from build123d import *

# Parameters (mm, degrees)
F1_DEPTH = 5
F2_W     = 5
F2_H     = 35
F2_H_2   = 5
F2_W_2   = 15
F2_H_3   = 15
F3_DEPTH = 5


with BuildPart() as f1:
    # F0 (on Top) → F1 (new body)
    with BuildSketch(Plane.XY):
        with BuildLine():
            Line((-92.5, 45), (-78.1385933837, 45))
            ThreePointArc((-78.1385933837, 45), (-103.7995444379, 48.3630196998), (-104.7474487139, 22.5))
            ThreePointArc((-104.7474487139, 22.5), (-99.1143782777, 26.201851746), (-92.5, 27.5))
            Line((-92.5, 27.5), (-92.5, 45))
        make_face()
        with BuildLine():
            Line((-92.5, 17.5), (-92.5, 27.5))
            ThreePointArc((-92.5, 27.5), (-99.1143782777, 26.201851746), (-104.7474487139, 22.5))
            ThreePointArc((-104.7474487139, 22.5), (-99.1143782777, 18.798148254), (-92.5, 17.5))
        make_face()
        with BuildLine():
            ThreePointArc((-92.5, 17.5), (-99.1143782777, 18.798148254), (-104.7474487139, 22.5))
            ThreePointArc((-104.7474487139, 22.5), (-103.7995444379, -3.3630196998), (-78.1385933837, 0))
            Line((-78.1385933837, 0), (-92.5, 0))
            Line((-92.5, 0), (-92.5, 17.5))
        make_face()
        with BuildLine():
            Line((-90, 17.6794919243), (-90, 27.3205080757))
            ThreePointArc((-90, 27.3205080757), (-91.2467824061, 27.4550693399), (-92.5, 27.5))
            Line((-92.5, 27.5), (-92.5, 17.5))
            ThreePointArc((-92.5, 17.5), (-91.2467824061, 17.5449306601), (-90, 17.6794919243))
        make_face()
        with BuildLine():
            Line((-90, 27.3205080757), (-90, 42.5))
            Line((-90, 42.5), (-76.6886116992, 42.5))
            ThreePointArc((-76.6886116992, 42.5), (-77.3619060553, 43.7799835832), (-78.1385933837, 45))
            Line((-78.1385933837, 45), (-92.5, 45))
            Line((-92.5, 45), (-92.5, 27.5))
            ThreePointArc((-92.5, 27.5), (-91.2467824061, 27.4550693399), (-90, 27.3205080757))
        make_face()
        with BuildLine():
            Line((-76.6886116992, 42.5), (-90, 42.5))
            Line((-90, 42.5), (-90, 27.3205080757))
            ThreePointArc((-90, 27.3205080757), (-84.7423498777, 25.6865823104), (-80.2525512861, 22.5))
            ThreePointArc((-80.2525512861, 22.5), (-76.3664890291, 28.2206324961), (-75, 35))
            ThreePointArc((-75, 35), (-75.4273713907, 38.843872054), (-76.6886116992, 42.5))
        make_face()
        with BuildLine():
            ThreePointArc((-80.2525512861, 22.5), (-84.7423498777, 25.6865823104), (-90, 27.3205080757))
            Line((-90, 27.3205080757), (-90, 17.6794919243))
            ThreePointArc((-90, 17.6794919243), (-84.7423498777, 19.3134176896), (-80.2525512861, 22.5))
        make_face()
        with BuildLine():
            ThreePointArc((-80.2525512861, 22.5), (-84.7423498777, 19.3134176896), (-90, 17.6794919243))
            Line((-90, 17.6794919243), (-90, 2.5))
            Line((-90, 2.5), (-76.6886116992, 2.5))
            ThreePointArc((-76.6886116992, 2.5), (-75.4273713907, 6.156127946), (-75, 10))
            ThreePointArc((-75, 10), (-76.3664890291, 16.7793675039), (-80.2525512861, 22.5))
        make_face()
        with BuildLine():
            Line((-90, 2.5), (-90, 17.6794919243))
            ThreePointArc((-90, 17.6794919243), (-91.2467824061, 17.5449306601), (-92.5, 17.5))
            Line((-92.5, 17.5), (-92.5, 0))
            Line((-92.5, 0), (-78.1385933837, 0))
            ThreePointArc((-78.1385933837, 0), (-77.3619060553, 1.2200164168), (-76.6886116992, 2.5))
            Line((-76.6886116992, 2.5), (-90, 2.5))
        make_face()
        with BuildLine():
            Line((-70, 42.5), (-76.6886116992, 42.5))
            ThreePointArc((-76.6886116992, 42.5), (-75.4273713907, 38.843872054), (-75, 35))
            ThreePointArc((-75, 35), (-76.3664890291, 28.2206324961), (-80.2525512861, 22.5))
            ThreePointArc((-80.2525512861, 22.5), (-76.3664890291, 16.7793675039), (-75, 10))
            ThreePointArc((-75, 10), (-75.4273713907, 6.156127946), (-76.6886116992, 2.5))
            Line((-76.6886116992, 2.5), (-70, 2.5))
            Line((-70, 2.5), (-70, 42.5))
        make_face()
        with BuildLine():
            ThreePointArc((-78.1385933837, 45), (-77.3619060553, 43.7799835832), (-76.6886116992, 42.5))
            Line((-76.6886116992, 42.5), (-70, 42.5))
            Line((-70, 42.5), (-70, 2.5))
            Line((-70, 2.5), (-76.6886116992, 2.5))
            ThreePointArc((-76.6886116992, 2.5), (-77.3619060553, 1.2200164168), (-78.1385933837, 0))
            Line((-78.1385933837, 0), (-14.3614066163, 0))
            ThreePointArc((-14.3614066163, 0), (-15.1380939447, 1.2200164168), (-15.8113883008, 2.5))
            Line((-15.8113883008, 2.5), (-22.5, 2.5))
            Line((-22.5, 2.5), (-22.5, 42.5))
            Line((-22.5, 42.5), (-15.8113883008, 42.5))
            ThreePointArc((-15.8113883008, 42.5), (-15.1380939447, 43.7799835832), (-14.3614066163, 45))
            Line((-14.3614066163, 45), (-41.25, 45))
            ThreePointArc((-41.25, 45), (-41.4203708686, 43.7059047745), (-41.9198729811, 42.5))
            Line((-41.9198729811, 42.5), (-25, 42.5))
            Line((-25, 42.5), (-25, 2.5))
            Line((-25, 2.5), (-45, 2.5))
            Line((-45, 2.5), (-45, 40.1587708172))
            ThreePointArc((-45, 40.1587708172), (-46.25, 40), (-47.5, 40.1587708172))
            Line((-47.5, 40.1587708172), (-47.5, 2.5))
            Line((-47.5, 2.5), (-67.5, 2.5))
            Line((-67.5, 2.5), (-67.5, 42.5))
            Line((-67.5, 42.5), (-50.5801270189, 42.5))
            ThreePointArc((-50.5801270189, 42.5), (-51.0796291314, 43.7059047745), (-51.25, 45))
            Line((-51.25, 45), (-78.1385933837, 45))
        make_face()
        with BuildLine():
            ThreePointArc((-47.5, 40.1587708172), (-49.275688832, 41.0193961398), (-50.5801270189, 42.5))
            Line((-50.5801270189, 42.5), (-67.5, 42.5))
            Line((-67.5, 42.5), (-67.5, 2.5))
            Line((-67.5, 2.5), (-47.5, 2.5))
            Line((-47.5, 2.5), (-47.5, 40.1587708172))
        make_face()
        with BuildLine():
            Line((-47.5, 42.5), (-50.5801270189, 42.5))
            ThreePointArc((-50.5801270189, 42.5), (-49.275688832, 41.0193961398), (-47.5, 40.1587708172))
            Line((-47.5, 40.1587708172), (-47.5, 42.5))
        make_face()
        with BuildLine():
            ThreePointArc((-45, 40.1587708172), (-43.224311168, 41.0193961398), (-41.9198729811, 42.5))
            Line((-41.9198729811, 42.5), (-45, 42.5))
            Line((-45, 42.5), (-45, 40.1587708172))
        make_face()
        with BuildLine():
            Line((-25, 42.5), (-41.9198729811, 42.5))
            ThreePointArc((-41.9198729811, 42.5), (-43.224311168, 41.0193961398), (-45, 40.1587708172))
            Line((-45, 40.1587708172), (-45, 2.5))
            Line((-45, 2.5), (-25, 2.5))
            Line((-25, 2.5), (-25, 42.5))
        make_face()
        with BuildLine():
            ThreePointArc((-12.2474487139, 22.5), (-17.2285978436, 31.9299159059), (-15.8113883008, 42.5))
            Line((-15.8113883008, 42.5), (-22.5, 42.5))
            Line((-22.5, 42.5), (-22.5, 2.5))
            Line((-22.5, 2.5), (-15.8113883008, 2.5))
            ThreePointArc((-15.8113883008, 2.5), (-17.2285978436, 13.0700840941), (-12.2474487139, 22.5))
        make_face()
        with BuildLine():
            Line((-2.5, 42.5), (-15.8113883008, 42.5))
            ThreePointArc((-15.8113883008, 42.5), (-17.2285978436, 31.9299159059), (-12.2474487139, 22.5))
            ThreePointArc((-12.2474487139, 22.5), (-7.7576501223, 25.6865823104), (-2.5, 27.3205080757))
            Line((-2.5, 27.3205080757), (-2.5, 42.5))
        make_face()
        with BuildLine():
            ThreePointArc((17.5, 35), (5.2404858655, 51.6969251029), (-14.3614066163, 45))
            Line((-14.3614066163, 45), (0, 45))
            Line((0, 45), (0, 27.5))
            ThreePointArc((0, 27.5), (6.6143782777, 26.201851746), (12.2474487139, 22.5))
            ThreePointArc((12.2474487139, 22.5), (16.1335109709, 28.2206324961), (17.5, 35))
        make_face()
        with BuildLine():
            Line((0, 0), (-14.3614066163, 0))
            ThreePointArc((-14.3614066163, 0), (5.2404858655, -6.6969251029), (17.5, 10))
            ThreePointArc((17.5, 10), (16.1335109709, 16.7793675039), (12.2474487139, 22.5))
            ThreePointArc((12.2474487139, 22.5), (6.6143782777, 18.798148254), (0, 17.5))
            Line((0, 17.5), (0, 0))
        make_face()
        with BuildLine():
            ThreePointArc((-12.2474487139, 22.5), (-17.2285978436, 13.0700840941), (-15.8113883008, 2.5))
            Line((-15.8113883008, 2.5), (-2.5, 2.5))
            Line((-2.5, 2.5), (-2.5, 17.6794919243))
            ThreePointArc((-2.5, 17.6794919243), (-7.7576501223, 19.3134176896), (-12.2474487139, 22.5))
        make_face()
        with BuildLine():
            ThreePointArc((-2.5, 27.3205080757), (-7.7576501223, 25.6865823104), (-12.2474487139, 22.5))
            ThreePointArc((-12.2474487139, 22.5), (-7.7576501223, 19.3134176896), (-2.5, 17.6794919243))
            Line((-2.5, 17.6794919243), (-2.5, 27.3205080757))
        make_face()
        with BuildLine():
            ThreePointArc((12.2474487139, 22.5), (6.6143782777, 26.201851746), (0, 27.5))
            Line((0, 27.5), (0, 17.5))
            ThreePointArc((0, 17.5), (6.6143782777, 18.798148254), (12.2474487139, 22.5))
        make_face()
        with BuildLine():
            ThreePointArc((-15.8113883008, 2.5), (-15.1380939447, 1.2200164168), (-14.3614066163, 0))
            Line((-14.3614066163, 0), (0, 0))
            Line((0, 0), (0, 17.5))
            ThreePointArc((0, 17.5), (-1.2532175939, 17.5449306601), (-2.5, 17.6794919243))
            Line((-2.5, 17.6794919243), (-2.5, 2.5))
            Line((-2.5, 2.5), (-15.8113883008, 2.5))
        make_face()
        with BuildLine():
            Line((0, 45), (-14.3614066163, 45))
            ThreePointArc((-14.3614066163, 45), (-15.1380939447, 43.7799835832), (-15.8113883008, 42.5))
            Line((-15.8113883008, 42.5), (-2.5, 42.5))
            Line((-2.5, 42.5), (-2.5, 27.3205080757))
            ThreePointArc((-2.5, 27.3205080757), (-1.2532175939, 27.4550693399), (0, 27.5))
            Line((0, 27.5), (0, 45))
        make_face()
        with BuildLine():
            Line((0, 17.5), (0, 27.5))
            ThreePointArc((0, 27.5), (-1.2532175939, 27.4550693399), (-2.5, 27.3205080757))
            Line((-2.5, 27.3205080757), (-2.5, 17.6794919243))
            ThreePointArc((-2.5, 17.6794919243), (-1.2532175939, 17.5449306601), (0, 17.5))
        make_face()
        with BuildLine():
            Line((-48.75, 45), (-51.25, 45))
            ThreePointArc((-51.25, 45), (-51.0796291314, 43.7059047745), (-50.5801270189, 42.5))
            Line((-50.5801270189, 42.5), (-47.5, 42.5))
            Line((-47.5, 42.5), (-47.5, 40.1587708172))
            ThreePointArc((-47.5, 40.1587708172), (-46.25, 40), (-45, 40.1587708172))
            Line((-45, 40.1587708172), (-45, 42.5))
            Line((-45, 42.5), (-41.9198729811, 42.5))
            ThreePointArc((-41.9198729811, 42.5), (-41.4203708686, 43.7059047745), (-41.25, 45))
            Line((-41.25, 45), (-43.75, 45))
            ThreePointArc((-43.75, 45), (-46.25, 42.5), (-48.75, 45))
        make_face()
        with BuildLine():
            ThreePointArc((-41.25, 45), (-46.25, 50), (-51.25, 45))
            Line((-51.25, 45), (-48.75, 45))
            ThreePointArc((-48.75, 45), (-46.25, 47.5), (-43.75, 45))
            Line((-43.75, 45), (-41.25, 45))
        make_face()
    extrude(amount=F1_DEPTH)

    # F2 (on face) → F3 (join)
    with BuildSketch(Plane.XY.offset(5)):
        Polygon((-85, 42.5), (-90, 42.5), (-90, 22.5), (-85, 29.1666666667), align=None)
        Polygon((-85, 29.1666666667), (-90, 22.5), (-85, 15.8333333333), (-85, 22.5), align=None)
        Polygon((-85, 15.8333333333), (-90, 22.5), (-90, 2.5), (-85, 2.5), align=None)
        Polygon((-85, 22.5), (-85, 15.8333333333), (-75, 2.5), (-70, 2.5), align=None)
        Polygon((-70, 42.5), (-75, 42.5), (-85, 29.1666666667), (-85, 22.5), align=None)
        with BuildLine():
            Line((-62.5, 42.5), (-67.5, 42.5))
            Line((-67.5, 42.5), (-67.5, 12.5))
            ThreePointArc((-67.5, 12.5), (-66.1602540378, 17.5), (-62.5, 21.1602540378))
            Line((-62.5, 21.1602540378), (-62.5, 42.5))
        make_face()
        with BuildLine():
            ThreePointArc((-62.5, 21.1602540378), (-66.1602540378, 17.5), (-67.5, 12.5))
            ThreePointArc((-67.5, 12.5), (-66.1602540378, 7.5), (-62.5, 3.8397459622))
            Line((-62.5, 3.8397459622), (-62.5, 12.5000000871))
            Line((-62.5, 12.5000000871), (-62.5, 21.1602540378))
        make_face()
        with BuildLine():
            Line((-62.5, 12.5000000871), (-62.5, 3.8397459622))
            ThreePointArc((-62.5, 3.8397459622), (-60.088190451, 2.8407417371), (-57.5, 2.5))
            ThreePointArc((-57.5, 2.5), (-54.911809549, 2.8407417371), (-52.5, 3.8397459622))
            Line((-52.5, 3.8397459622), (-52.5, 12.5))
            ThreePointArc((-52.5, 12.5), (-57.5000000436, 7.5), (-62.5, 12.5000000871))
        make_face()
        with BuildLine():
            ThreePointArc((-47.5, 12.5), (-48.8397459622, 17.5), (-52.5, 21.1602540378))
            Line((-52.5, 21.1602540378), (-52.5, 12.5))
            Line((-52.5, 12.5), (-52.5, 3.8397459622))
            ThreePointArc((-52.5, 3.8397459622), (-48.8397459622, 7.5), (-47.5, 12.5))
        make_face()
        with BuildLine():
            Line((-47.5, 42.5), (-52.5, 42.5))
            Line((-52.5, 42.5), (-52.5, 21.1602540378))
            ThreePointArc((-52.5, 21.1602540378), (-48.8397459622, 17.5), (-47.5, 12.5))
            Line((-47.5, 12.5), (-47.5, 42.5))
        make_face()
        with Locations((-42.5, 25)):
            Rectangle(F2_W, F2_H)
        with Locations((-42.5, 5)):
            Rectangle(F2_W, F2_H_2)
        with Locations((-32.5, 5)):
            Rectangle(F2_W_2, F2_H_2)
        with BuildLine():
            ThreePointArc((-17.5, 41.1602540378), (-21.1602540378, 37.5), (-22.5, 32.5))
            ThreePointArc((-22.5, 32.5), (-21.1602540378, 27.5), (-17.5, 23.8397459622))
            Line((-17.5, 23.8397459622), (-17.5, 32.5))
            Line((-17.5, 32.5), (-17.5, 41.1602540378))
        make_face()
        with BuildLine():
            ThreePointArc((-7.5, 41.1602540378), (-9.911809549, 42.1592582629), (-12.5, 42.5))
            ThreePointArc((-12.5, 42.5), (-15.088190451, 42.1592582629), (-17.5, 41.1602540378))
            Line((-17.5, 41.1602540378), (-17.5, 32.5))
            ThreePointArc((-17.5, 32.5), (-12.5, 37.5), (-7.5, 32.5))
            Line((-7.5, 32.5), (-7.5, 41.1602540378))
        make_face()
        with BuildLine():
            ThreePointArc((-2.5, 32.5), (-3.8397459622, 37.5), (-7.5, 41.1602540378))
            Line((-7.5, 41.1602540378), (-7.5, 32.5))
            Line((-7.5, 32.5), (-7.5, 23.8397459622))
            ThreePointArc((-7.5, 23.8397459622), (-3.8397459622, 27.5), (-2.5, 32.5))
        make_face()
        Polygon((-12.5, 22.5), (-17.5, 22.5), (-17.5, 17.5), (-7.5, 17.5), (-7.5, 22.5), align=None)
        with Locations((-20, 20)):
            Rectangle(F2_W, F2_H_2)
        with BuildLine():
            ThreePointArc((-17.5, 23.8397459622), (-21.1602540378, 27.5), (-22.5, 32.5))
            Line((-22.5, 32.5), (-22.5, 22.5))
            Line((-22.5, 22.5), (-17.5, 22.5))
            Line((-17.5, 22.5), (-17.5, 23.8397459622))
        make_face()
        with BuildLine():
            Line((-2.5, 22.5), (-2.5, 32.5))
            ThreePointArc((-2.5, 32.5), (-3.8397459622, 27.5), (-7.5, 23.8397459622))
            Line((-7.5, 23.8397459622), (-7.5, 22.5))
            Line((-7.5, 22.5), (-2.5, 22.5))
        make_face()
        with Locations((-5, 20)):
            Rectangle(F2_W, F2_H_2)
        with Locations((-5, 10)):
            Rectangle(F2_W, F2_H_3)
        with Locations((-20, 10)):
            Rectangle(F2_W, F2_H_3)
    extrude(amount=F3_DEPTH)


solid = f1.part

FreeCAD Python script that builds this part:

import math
import FreeCAD as App
import Part
import Sketcher

V = App.Vector


def add_polygon(sketch, points):
    """Adds a closed chain of lines whose ends are joined by coincident constraints."""
    first, n = sketch.GeometryCount, len(points)
    for a, b in zip(points, points[1:] + points[:1]):
        sketch.addGeometry(Part.LineSegment(App.Vector(*a, 0), App.Vector(*b, 0)), False)
    for i in range(n):
        sketch.addConstraint(Sketcher.Constraint("Coincident", first + i, 2, first + (i + 1) % n, 1))

doc = App.newDocument("Part")
params = doc.addObject("Spreadsheet::Sheet", "Params")
for row, (alias, value) in enumerate([
    ("sketch1_diameter", "5 mm"),
    ("sketch1_radius", "5 mm"),
    ("sketch1_radius2", "17.5 mm"),
    ("pad1_length", "5 mm"),
    ("sketch2_radius", "10 mm"),
    ("sketch2_radius2", "5 mm"),
    ("sketch2_width", "20 mm"),
    ("sketch2_length", "25 mm"),
    ("pad2_length", "5 mm"),
], start=1):
    params.set(f"A{row}", alias)
    params.set(f"B{row}", "=" + value)
    params.setAlias(f"B{row}", alias)

body = doc.addObject("PartDesign::Body", "Body")

sketch1 = body.newObject("Sketcher::SketchObject", "Sketch")
sketch1.AttachmentSupport = (doc.getObject("XY_Plane"), [""])
sketch1.MapMode = "FlatFace"
sketch1.addGeometry([
    Part.ArcOfCircle(Part.Circle(V(0, 35, 0), V(0, 0, 1), 17.5), math.radians(0), math.radians(145.150095)),
    Part.LineSegment(V(-14.361407, 45, 0), V(-41.25, 45, 0)),
    Part.ArcOfCircle(Part.Circle(V(-46.25, 45, 0), V(0, 0, 1), 5), math.radians(0), math.radians(180)),
    Part.LineSegment(V(-51.25, 45, 0), V(-78.138593, 45, 0)),
    Part.ArcOfCircle(Part.Circle(V(-92.5, 35, 0), V(0, 0, 1), 17.5), math.radians(34.849905), math.radians(225.584691)),
    Part.ArcOfCircle(Part.Circle(V(-92.5, 10, 0), V(0, 0, 1), 17.5), math.radians(134.415309), math.radians(325.150095)),
    Part.LineSegment(V(-78.138593, 0, 0), V(-14.361407, 0, 0)),
    Part.ArcOfCircle(Part.Circle(V(0, 10, 0), V(0, 0, 1), 17.5), math.radians(-145.150095), math.radians(0)),
    Part.ArcOfCircle(Part.Circle(V(0, 10, 0), V(0, 0, 1), 17.5), math.radians(0), math.radians(45.584691)),
    Part.ArcOfCircle(Part.Circle(V(0, 35, 0), V(0, 0, 1), 17.5), math.radians(-45.584691), math.radians(0)),
    Part.Circle(V(-46.25, 45, 0), V(0, 0, 1), 2.5),
], False)
sketch1.addConstraint([
    Sketcher.Constraint("Coincident", 0, 2, 1, 1),
    Sketcher.Constraint("Coincident", 1, 2, 2, 1),
    Sketcher.Constraint("Coincident", 2, 2, 3, 1),
    Sketcher.Constraint("Coincident", 3, 2, 4, 1),
    Sketcher.Constraint("Coincident", 4, 2, 5, 1),
    Sketcher.Constraint("Coincident", 5, 2, 6, 1),
    Sketcher.Constraint("Coincident", 6, 2, 7, 1),
    Sketcher.Constraint("Tangent", 7, 2, 8, 1),
    Sketcher.Constraint("Coincident", 8, 2, 9, 1),
    Sketcher.Constraint("Tangent", 9, 2, 0, 1),
    Sketcher.Constraint("Horizontal", 1),
    Sketcher.Constraint("Horizontal", 3),
    Sketcher.Constraint("Horizontal", 6),
    Sketcher.Constraint("Coincident", 10, 3, 2, 3),
    Sketcher.Constraint("Equal", 0, 4),
    Sketcher.Constraint("Equal", 4, 5),
    Sketcher.Constraint("Equal", 5, 7),
    Sketcher.Constraint("Equal", 7, 8),
    Sketcher.Constraint("Equal", 8, 9),
    Sketcher.Constraint("PointOnObject", 0, 3, -2),
    Sketcher.Constraint("PointOnObject", 7, 3, -2),
    Sketcher.Constraint("PointOnObject", 5, 2, -1),
    Sketcher.Constraint("Horizontal", 0, 3, 4, 3),
    Sketcher.Constraint("Horizontal", 5, 3, 7, 3),
    Sketcher.Constraint("Horizontal", 10, 3, 0, 2),
    Sketcher.Constraint("Horizontal", 1, 2, 2, 2),
    Sketcher.Constraint("Horizontal", 8, 3, 7, 2),
    Sketcher.Constraint("Horizontal", 4, 2, 8, 2),
    Sketcher.Constraint("Horizontal", 4, 3, 9, 2),
    Sketcher.Constraint("Vertical", 3, 2, 5, 2),
    Sketcher.Constraint("Equal", 1, 3),
    Sketcher.Constraint("Diameter", 10, 5.0),
    Sketcher.Constraint("Radius", 2, 5.0),
    Sketcher.Constraint("Radius", 0, 17.5),
    Sketcher.Constraint("DistanceY", -1, 1, 0, 3, 35.0),
    Sketcher.Constraint("DistanceY", -1, 1, 2, 3, 45.0),
    Sketcher.Constraint("DistanceX", 4, 3, -1, 1, 92.5),
])
sketch1.setExpression("Constraints[31]", "Params.sketch1_diameter")
sketch1.setExpression("Constraints[32]", "Params.sketch1_radius")
sketch1.setExpression("Constraints[33]", "Params.sketch1_radius2")
pad1 = body.newObject("PartDesign::Pad", "Pad")
pad1.Profile = sketch1
pad1.setExpression("Length", "Params.pad1_length")

sketch2 = body.newObject("Sketcher::SketchObject", "Sketch001")
sketch2.AttachmentSupport = (doc.getObject("XY_Plane"), [""])
sketch2.MapMode = "FlatFace"
sketch2.AttachmentOffset = App.Placement(V(0, 0, 5), App.Rotation())
add_polygon(sketch2, [(-85, 42.5), (-90, 42.5), (-90, 2.5), (-85, 2.5), (-85, 15.833333), (-75, 2.5), (-70, 2.5), (-85, 22.5), (-70, 42.5), (-75, 42.5), (-85, 29.166667)])
sketch2.addGeometry(Part.LineSegment(V(-62.5, 42.5, 0), V(-67.5, 42.5, 0)), False)
sketch2.addGeometry(Part.LineSegment(V(-67.5, 42.5, 0), V(-67.5, 12.5, 0)), False)
sketch2.addGeometry(Part.ArcOfCircle(Part.Circle(V(-57.5, 12.5, 0), V(0, 0, 1), 10), math.radians(180), math.radians(240)), False)
sketch2.addGeometry(Part.ArcOfCircle(Part.Circle(V(-57.5, 12.5, 0), V(0, 0, 1), 10), math.radians(-120), math.radians(-90)), False)
sketch2.addGeometry(Part.ArcOfCircle(Part.Circle(V(-57.5, 12.5, 0), V(0, 0, 1), 10), math.radians(-90), math.radians(-60)), False)
sketch2.addGeometry(Part.ArcOfCircle(Part.Circle(V(-57.5, 12.5, 0), V(0, 0, 1), 10), math.radians(-60), math.radians(0)), False)
sketch2.addGeometry(Part.LineSegment(V(-47.5, 12.5, 0), V(-47.5, 42.5, 0)), False)
sketch2.addGeometry(Part.LineSegment(V(-47.5, 42.5, 0), V(-52.5, 42.5, 0)), False)
sketch2.addGeometry(Part.LineSegment(V(-52.5, 42.5, 0), V(-52.5, 12.5, 0)), False)
sketch2.addGeometry(Part.ArcOfCircle(Part.Circle(V(-57.5, 12.5, 0), V(0, 0, 1), 5), math.radians(179.999999), math.radians(360)), False)
sketch2.addGeometry(Part.LineSegment(V(-62.5, 12.5, 0), V(-62.5, 42.5, 0)), False)
add_polygon(sketch2, [(-45, 42.5), (-45, 2.5), (-25, 2.5), (-25, 7.5), (-40, 7.5), (-40, 42.5)])
sketch2.addGeometry(Part.LineSegment(V(-17.5, 17.5, 0), V(-7.5, 17.5, 0)), False)
sketch2.addGeometry(Part.LineSegment(V(-7.5, 17.5, 0), V(-7.5, 2.5, 0)), False)
sketch2.addGeometry(Part.LineSegment(V(-7.5, 2.5, 0), V(-2.5, 2.5, 0)), False)
sketch2.addGeometry(Part.LineSegment(V(-2.5, 2.5, 0), V(-2.5, 32.5, 0)), False)
sketch2.addGeometry(Part.ArcOfCircle(Part.Circle(V(-12.5, 32.5, 0), V(0, 0, 1), 10), math.radians(0), math.radians(60)), False)
sketch2.addGeometry(Part.ArcOfCircle(Part.Circle(V(-12.5, 32.5, 0), V(0, 0, 1), 10), math.radians(60), math.radians(90)), False)
sketch2.addGeometry(Part.ArcOfCircle(Part.Circle(V(-12.5, 32.5, 0), V(0, 0, 1), 10), math.radians(90), math.radians(120)), False)
sketch2.addGeometry(Part.ArcOfCircle(Part.Circle(V(-12.5, 32.5, 0), V(0, 0, 1), 10), math.radians(120), math.radians(180)), False)
sketch2.addGeometry(Part.LineSegment(V(-22.5, 32.5, 0), V(-22.5, 2.5, 0)), False)
sketch2.addGeometry(Part.LineSegment(V(-22.5, 2.5, 0), V(-17.5, 2.5, 0)), False)
sketch2.addGeometry(Part.LineSegment(V(-17.5, 2.5, 0), V(-17.5, 17.5, 0)), False)
sketch2.addGeometry(Part.LineSegment(V(-7.5, 32.5, 0), V(-7.5, 22.5, 0)), False)
sketch2.addGeometry(Part.LineSegment(V(-7.5, 22.5, 0), V(-17.5, 22.5, 0)), False)
sketch2.addGeometry(Part.LineSegment(V(-17.5, 22.5, 0), V(-17.5, 32.5, 0)), False)
sketch2.addGeometry(Part.ArcOfCircle(Part.Circle(V(-12.5, 32.5, 0), V(0, 0, 1), 5), math.radians(0), math.radians(180)), False)
sketch2.addConstraint([
    Sketcher.Constraint("Coincident", 11, 2, 12, 1),
    Sketcher.Constraint("Tangent", 12, 2, 13, 1),
    Sketcher.Constraint("Tangent", 13, 2, 14, 1),
    Sketcher.Constraint("Tangent", 14, 2, 15, 1),
    Sketcher.Constraint("Tangent", 15, 2, 16, 1),
    Sketcher.Constraint("Tangent", 16, 2, 17, 1),
    Sketcher.Constraint("Coincident", 17, 2, 18, 1),
    Sketcher.Constraint("Coincident", 18, 2, 19, 1),
    Sketcher.Constraint("Tangent", 19, 2, 20, 2),
    Sketcher.Constraint("Tangent", 20, 1, 21, 1),
    Sketcher.Constraint("Coincident", 21, 2, 11, 1),
    Sketcher.Constraint("Coincident", 28, 2, 29, 1),
    Sketcher.Constraint("Coincident", 29, 2, 30, 1),
    Sketcher.Constraint("Coincident", 30, 2, 31, 1),
    Sketcher.Constraint("Tangent", 31, 2, 32, 1),
    Sketcher.Constraint("Tangent", 32, 2, 33, 1),
    Sketcher.Constraint("Tangent", 33, 2, 34, 1),
    Sketcher.Constraint("Tangent", 34, 2, 35, 1),
    Sketcher.Constraint("Tangent", 35, 2, 36, 1),
    Sketcher.Constraint("Coincident", 36, 2, 37, 1),
    Sketcher.Constraint("Coincident", 37, 2, 38, 1),
    Sketcher.Constraint("Coincident", 38, 2, 28, 1),
    Sketcher.Constraint("Coincident", 39, 2, 40, 1),
    Sketcher.Constraint("Coincident", 40, 2, 41, 1),
    Sketcher.Constraint("Tangent", 41, 2, 42, 2),
    Sketcher.Constraint("Tangent", 42, 1, 39, 1),
    Sketcher.Constraint("Horizontal", 0),
    Sketcher.Constraint("Vertical", 1),
    Sketcher.Constraint("Horizontal", 2),
    Sketcher.Constraint("Vertical", 3),
    Sketcher.Constraint("Horizontal", 5),
    Sketcher.Constraint("Horizontal", 8),
    Sketcher.Constraint("Vertical", 10),
    Sketcher.Constraint("Horizontal", 11),
    Sketcher.Constraint("Vertical", 12),
    Sketcher.Constraint("Vertical", 17),
    Sketcher.Constraint("Horizontal", 18),
    Sketcher.Constraint("Vertical", 19),
    Sketcher.Constraint("Vertical", 21),
    Sketcher.Constraint("Vertical", 22),
    Sketcher.Constraint("Horizontal", 23),
    Sketcher.Constraint("Vertical", 24),
    Sketcher.Constraint("Horizontal", 25),
    Sketcher.Constraint("Vertical", 26),
    Sketcher.Constraint("Horizontal", 27),
    Sketcher.Constraint("Horizontal", 28),
    Sketcher.Constraint("Vertical", 29),
    Sketcher.Constraint("Horizontal", 30),
    Sketcher.Constraint("Vertical", 31),
    Sketcher.Constraint("Vertical", 36),
    Sketcher.Constraint("Horizontal", 37),
    Sketcher.Constraint("Vertical", 38),
    Sketcher.Constraint("Vertical", 39),
    Sketcher.Constraint("Horizontal", 40),
    Sketcher.Constraint("Vertical", 41),
    Sketcher.Constraint("Coincident", 15, 3, 13, 3),
    Sketcher.Constraint("Coincident", 20, 3, 13, 3),
    Sketcher.Constraint("Coincident", 34, 3, 32, 3),
    Sketcher.Constraint("Coincident", 42, 3, 32, 3),
    Sketcher.Constraint("Equal", 15, 16),
    Sketcher.Constraint("Equal", 16, 32),
    Sketcher.Constraint("Equal", 34, 35),
    Sketcher.Constraint("Equal", 20, 42),
    Sketcher.Constraint("Parallel", 4, 6),
    Sketcher.Constraint("Parallel", 7, 9),
    Sketcher.Constraint("Horizontal", 2, 2, 4, 2),
    Sketcher.Constraint("Horizontal", 0, 2, 7, 2),
    Sketcher.Constraint("Horizontal", 10, 2, 11, 2),
    Sketcher.Constraint("Horizontal", 5, 2, 14, 2),
    Sketcher.Constraint("Horizontal", 13, 2, 15, 2),
    Sketcher.Constraint("Horizontal", 11, 2, 17, 2),
    Sketcher.Constraint("Horizontal", 14, 2, 22, 2),
    Sketcher.Constraint("Horizontal", 21, 2, 26, 2),
    Sketcher.Constraint("Horizontal", 23, 2, 29, 2),
    Sketcher.Constraint("Horizontal", 27, 2, 33, 2),
    Sketcher.Constraint("Horizontal", 32, 2, 34, 2),
    Sketcher.Constraint("Horizontal", 30, 2, 36, 2),
    Sketcher.Constraint("Horizontal", 6, 2, 39, 2),
    Sketcher.Constraint("Vertical", 3, 2, 6, 2),
    Sketcher.Constraint("Vertical", 5, 2, 7, 2),
    Sketcher.Constraint("Vertical", 4, 2, 8, 2),
    Sketcher.Constraint("Vertical", 6, 2, 9, 2),
    Sketcher.Constraint("Vertical", 20, 3, 14, 2),
    Sketcher.Constraint("Vertical", 15, 2, 18, 2),
    Sketcher.Constraint("Vertical", 29, 2, 32, 2),
    Sketcher.Constraint("Vertical", 42, 3, 33, 2),
    Sketcher.Constraint("Vertical", 34, 2, 37, 2),
    Sketcher.Constraint("Vertical", 32, 2, 39, 2),
    Sketcher.Constraint("Equal", 2, 5),
    Sketcher.Constraint("Equal", 8, 11),
    Sketcher.Constraint("Equal", 18, 27),
    Sketcher.Constraint("Equal", 3, 10),
    Sketcher.Constraint("Equal", 37, 24),
    Sketcher.Constraint("Equal", 25, 29),
    Sketcher.Constraint("Equal", 40, 39),
    Sketcher.Constraint("Radius", 13, 10.0),
    Sketcher.Constraint("Radius", 20, 5.0),
    Sketcher.Constraint("DistanceX", 23, 1, 23, 2, 20.0),
    Sketcher.Constraint("Distance", 6, 25.0),
    Sketcher.Constraint("DistanceX", 0, 2, -1, 1, 90.0),
    Sketcher.Constraint("DistanceX", 22, 2, -1, 1, 45.0),
    Sketcher.Constraint("DistanceX", 13, 3, 32, 3, 45.0),
    Sketcher.Constraint("DistanceX", 13, 3, -1, 1, 57.5),
    Sketcher.Constraint("DistanceY", -1, 1, 13, 3, 12.5),
])
sketch2.setExpression("Constraints[112]", "Params.sketch2_radius")
sketch2.setExpression("Constraints[113]", "Params.sketch2_radius2")
sketch2.setExpression("Constraints[114]", "Params.sketch2_width")
sketch2.setExpression("Constraints[115]", "Params.sketch2_length")
pad2 = body.newObject("PartDesign::Pad", "Pad001")
pad2.Profile = sketch2
pad2.setExpression("Length", "Params.pad2_length")

doc.recompute()
